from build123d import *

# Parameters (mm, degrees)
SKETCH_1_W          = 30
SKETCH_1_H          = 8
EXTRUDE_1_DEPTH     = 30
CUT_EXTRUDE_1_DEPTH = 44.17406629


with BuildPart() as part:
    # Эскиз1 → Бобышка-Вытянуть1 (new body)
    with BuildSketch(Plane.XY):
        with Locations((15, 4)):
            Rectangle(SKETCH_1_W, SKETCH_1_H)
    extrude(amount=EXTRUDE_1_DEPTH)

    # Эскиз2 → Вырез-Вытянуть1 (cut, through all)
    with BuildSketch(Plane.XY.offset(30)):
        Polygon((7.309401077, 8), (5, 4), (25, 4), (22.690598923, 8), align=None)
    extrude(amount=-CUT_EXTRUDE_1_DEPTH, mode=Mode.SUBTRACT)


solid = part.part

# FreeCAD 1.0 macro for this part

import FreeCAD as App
import Part
import Sketcher
from FreeCAD import Vector
Q = App.Units.Quantity

doc = App.newDocument("Part")
body = doc.addObject("PartDesign::Body", "Body")

# Sketch on XY plane
sketch1 = body.newObject("Sketcher::SketchObject", "Sketch")
sketch1.AttachmentSupport = (doc.getObject("XY_Plane"), [""])
sketch1.MapMode = "FlatFace"
sketch1.addGeometry(Part.LineSegment(Vector(0, 8, 0), Vector(0, 0, 0)), False)
sketch1.addGeometry(Part.LineSegment(Vector(0, 0, 0), Vector(30, 0, 0)), False)
sketch1.addGeometry(Part.LineSegment(Vector(30, 0, 0), Vector(30, 8, 0)), False)
sketch1.addGeometry(Part.LineSegment(Vector(30, 8, 0), Vector(0, 8, 0)), False)
sketch1.addConstraint(Sketcher.Constraint("Coincident", 0, 2, 1, 1))
sketch1.addConstraint(Sketcher.Constraint("Coincident", 1, 2, 2, 1))
sketch1.addConstraint(Sketcher.Constraint("Coincident", 2, 2, 3, 1))
sketch1.addConstraint(Sketcher.Constraint("Coincident", 3, 2, 0, 1))
sketch1.addConstraint(Sketcher.Constraint("Vertical", 0))
sketch1.addConstraint(Sketcher.Constraint("Horizontal", 1))
sketch1.addConstraint(Sketcher.Constraint("Vertical", 2))
sketch1.addConstraint(Sketcher.Constraint("Horizontal", 3))
sketch1.addConstraint(Sketcher.Constraint("Coincident", 0, 2, -1, 1))
sketch1.addConstraint(Sketcher.Constraint("DistanceX", 1, 1, 1, 2, Q("30 mm")))
sketch1.addConstraint(Sketcher.Constraint("DistanceY", 0, 2, 0, 1, Q("8 mm")))
pad1 = body.newObject("PartDesign::Pad", "Pad")
pad1.Profile = sketch1
pad1.Length = 30

# Sketch on XY plane
sketch2 = body.newObject("Sketcher::SketchObject", "Sketch001")
sketch2.AttachmentSupport = (doc.getObject("XY_Plane"), [""])
sketch2.MapMode = "FlatFace"
sketch2.AttachmentOffset = App.Placement(Vector(0, 0, 30), App.Rotation())
sketch2.addGeometry(Part.LineSegment(Vector(7.309401, 8, 0), Vector(5, 4, 0)), False)
sketch2.addGeometry(Part.LineSegment(Vector(5, 4, 0), Vector(25, 4, 0)), False)
sketch2.addGeometry(Part.LineSegment(Vector(25, 4, 0), Vector(22.690599, 8, 0)), False)
sketch2.addGeometry(Part.LineSegment(Vector(22.690599, 8, 0), Vector(7.309401, 8, 0)), False)
sketch2.addConstraint(Sketcher.Constraint("Coincident", 0, 2, 1, 1))
sketch2.addConstraint(Sketcher.Constraint("Coincident", 1, 2, 2, 1))
sketch2.addConstraint(Sketcher.Constraint("Coincident", 2, 2, 3, 1))
sketch2.addConstraint(Sketcher.Constraint("Coincident", 3, 2, 0, 1))
sketch2.addConstraint(Sketcher.Constraint("Horizontal", 1))
sketch2.addConstraint(Sketcher.Constraint("Horizontal", 3))
sketch2.addConstraint(Sketcher.Constraint("Equal", 0, 2))
sketch2.addConstraint(Sketcher.Constraint("DistanceX", 1, 1, 1, 2, Q("20 mm")))
sketch2.addConstraint(Sketcher.Constraint("Angle", 0, Q("-120 deg")))
sketch2.addConstraint(Sketcher.Constraint("DistanceX", -1, 1, 0, 2, Q("5 mm")))
sketch2.addConstraint(Sketcher.Constraint("DistanceY", -1, 1, 0, 2, Q("4 mm")))
sketch2.addConstraint(Sketcher.Constraint("DistanceY", -1, 1, 2, 2, Q("8 mm")))
pocket1 = body.newObject("PartDesign::Pocket", "Pocket")
pocket1.Profile = sketch2
pocket1.Type = "ThroughAll"

doc.recompute()
